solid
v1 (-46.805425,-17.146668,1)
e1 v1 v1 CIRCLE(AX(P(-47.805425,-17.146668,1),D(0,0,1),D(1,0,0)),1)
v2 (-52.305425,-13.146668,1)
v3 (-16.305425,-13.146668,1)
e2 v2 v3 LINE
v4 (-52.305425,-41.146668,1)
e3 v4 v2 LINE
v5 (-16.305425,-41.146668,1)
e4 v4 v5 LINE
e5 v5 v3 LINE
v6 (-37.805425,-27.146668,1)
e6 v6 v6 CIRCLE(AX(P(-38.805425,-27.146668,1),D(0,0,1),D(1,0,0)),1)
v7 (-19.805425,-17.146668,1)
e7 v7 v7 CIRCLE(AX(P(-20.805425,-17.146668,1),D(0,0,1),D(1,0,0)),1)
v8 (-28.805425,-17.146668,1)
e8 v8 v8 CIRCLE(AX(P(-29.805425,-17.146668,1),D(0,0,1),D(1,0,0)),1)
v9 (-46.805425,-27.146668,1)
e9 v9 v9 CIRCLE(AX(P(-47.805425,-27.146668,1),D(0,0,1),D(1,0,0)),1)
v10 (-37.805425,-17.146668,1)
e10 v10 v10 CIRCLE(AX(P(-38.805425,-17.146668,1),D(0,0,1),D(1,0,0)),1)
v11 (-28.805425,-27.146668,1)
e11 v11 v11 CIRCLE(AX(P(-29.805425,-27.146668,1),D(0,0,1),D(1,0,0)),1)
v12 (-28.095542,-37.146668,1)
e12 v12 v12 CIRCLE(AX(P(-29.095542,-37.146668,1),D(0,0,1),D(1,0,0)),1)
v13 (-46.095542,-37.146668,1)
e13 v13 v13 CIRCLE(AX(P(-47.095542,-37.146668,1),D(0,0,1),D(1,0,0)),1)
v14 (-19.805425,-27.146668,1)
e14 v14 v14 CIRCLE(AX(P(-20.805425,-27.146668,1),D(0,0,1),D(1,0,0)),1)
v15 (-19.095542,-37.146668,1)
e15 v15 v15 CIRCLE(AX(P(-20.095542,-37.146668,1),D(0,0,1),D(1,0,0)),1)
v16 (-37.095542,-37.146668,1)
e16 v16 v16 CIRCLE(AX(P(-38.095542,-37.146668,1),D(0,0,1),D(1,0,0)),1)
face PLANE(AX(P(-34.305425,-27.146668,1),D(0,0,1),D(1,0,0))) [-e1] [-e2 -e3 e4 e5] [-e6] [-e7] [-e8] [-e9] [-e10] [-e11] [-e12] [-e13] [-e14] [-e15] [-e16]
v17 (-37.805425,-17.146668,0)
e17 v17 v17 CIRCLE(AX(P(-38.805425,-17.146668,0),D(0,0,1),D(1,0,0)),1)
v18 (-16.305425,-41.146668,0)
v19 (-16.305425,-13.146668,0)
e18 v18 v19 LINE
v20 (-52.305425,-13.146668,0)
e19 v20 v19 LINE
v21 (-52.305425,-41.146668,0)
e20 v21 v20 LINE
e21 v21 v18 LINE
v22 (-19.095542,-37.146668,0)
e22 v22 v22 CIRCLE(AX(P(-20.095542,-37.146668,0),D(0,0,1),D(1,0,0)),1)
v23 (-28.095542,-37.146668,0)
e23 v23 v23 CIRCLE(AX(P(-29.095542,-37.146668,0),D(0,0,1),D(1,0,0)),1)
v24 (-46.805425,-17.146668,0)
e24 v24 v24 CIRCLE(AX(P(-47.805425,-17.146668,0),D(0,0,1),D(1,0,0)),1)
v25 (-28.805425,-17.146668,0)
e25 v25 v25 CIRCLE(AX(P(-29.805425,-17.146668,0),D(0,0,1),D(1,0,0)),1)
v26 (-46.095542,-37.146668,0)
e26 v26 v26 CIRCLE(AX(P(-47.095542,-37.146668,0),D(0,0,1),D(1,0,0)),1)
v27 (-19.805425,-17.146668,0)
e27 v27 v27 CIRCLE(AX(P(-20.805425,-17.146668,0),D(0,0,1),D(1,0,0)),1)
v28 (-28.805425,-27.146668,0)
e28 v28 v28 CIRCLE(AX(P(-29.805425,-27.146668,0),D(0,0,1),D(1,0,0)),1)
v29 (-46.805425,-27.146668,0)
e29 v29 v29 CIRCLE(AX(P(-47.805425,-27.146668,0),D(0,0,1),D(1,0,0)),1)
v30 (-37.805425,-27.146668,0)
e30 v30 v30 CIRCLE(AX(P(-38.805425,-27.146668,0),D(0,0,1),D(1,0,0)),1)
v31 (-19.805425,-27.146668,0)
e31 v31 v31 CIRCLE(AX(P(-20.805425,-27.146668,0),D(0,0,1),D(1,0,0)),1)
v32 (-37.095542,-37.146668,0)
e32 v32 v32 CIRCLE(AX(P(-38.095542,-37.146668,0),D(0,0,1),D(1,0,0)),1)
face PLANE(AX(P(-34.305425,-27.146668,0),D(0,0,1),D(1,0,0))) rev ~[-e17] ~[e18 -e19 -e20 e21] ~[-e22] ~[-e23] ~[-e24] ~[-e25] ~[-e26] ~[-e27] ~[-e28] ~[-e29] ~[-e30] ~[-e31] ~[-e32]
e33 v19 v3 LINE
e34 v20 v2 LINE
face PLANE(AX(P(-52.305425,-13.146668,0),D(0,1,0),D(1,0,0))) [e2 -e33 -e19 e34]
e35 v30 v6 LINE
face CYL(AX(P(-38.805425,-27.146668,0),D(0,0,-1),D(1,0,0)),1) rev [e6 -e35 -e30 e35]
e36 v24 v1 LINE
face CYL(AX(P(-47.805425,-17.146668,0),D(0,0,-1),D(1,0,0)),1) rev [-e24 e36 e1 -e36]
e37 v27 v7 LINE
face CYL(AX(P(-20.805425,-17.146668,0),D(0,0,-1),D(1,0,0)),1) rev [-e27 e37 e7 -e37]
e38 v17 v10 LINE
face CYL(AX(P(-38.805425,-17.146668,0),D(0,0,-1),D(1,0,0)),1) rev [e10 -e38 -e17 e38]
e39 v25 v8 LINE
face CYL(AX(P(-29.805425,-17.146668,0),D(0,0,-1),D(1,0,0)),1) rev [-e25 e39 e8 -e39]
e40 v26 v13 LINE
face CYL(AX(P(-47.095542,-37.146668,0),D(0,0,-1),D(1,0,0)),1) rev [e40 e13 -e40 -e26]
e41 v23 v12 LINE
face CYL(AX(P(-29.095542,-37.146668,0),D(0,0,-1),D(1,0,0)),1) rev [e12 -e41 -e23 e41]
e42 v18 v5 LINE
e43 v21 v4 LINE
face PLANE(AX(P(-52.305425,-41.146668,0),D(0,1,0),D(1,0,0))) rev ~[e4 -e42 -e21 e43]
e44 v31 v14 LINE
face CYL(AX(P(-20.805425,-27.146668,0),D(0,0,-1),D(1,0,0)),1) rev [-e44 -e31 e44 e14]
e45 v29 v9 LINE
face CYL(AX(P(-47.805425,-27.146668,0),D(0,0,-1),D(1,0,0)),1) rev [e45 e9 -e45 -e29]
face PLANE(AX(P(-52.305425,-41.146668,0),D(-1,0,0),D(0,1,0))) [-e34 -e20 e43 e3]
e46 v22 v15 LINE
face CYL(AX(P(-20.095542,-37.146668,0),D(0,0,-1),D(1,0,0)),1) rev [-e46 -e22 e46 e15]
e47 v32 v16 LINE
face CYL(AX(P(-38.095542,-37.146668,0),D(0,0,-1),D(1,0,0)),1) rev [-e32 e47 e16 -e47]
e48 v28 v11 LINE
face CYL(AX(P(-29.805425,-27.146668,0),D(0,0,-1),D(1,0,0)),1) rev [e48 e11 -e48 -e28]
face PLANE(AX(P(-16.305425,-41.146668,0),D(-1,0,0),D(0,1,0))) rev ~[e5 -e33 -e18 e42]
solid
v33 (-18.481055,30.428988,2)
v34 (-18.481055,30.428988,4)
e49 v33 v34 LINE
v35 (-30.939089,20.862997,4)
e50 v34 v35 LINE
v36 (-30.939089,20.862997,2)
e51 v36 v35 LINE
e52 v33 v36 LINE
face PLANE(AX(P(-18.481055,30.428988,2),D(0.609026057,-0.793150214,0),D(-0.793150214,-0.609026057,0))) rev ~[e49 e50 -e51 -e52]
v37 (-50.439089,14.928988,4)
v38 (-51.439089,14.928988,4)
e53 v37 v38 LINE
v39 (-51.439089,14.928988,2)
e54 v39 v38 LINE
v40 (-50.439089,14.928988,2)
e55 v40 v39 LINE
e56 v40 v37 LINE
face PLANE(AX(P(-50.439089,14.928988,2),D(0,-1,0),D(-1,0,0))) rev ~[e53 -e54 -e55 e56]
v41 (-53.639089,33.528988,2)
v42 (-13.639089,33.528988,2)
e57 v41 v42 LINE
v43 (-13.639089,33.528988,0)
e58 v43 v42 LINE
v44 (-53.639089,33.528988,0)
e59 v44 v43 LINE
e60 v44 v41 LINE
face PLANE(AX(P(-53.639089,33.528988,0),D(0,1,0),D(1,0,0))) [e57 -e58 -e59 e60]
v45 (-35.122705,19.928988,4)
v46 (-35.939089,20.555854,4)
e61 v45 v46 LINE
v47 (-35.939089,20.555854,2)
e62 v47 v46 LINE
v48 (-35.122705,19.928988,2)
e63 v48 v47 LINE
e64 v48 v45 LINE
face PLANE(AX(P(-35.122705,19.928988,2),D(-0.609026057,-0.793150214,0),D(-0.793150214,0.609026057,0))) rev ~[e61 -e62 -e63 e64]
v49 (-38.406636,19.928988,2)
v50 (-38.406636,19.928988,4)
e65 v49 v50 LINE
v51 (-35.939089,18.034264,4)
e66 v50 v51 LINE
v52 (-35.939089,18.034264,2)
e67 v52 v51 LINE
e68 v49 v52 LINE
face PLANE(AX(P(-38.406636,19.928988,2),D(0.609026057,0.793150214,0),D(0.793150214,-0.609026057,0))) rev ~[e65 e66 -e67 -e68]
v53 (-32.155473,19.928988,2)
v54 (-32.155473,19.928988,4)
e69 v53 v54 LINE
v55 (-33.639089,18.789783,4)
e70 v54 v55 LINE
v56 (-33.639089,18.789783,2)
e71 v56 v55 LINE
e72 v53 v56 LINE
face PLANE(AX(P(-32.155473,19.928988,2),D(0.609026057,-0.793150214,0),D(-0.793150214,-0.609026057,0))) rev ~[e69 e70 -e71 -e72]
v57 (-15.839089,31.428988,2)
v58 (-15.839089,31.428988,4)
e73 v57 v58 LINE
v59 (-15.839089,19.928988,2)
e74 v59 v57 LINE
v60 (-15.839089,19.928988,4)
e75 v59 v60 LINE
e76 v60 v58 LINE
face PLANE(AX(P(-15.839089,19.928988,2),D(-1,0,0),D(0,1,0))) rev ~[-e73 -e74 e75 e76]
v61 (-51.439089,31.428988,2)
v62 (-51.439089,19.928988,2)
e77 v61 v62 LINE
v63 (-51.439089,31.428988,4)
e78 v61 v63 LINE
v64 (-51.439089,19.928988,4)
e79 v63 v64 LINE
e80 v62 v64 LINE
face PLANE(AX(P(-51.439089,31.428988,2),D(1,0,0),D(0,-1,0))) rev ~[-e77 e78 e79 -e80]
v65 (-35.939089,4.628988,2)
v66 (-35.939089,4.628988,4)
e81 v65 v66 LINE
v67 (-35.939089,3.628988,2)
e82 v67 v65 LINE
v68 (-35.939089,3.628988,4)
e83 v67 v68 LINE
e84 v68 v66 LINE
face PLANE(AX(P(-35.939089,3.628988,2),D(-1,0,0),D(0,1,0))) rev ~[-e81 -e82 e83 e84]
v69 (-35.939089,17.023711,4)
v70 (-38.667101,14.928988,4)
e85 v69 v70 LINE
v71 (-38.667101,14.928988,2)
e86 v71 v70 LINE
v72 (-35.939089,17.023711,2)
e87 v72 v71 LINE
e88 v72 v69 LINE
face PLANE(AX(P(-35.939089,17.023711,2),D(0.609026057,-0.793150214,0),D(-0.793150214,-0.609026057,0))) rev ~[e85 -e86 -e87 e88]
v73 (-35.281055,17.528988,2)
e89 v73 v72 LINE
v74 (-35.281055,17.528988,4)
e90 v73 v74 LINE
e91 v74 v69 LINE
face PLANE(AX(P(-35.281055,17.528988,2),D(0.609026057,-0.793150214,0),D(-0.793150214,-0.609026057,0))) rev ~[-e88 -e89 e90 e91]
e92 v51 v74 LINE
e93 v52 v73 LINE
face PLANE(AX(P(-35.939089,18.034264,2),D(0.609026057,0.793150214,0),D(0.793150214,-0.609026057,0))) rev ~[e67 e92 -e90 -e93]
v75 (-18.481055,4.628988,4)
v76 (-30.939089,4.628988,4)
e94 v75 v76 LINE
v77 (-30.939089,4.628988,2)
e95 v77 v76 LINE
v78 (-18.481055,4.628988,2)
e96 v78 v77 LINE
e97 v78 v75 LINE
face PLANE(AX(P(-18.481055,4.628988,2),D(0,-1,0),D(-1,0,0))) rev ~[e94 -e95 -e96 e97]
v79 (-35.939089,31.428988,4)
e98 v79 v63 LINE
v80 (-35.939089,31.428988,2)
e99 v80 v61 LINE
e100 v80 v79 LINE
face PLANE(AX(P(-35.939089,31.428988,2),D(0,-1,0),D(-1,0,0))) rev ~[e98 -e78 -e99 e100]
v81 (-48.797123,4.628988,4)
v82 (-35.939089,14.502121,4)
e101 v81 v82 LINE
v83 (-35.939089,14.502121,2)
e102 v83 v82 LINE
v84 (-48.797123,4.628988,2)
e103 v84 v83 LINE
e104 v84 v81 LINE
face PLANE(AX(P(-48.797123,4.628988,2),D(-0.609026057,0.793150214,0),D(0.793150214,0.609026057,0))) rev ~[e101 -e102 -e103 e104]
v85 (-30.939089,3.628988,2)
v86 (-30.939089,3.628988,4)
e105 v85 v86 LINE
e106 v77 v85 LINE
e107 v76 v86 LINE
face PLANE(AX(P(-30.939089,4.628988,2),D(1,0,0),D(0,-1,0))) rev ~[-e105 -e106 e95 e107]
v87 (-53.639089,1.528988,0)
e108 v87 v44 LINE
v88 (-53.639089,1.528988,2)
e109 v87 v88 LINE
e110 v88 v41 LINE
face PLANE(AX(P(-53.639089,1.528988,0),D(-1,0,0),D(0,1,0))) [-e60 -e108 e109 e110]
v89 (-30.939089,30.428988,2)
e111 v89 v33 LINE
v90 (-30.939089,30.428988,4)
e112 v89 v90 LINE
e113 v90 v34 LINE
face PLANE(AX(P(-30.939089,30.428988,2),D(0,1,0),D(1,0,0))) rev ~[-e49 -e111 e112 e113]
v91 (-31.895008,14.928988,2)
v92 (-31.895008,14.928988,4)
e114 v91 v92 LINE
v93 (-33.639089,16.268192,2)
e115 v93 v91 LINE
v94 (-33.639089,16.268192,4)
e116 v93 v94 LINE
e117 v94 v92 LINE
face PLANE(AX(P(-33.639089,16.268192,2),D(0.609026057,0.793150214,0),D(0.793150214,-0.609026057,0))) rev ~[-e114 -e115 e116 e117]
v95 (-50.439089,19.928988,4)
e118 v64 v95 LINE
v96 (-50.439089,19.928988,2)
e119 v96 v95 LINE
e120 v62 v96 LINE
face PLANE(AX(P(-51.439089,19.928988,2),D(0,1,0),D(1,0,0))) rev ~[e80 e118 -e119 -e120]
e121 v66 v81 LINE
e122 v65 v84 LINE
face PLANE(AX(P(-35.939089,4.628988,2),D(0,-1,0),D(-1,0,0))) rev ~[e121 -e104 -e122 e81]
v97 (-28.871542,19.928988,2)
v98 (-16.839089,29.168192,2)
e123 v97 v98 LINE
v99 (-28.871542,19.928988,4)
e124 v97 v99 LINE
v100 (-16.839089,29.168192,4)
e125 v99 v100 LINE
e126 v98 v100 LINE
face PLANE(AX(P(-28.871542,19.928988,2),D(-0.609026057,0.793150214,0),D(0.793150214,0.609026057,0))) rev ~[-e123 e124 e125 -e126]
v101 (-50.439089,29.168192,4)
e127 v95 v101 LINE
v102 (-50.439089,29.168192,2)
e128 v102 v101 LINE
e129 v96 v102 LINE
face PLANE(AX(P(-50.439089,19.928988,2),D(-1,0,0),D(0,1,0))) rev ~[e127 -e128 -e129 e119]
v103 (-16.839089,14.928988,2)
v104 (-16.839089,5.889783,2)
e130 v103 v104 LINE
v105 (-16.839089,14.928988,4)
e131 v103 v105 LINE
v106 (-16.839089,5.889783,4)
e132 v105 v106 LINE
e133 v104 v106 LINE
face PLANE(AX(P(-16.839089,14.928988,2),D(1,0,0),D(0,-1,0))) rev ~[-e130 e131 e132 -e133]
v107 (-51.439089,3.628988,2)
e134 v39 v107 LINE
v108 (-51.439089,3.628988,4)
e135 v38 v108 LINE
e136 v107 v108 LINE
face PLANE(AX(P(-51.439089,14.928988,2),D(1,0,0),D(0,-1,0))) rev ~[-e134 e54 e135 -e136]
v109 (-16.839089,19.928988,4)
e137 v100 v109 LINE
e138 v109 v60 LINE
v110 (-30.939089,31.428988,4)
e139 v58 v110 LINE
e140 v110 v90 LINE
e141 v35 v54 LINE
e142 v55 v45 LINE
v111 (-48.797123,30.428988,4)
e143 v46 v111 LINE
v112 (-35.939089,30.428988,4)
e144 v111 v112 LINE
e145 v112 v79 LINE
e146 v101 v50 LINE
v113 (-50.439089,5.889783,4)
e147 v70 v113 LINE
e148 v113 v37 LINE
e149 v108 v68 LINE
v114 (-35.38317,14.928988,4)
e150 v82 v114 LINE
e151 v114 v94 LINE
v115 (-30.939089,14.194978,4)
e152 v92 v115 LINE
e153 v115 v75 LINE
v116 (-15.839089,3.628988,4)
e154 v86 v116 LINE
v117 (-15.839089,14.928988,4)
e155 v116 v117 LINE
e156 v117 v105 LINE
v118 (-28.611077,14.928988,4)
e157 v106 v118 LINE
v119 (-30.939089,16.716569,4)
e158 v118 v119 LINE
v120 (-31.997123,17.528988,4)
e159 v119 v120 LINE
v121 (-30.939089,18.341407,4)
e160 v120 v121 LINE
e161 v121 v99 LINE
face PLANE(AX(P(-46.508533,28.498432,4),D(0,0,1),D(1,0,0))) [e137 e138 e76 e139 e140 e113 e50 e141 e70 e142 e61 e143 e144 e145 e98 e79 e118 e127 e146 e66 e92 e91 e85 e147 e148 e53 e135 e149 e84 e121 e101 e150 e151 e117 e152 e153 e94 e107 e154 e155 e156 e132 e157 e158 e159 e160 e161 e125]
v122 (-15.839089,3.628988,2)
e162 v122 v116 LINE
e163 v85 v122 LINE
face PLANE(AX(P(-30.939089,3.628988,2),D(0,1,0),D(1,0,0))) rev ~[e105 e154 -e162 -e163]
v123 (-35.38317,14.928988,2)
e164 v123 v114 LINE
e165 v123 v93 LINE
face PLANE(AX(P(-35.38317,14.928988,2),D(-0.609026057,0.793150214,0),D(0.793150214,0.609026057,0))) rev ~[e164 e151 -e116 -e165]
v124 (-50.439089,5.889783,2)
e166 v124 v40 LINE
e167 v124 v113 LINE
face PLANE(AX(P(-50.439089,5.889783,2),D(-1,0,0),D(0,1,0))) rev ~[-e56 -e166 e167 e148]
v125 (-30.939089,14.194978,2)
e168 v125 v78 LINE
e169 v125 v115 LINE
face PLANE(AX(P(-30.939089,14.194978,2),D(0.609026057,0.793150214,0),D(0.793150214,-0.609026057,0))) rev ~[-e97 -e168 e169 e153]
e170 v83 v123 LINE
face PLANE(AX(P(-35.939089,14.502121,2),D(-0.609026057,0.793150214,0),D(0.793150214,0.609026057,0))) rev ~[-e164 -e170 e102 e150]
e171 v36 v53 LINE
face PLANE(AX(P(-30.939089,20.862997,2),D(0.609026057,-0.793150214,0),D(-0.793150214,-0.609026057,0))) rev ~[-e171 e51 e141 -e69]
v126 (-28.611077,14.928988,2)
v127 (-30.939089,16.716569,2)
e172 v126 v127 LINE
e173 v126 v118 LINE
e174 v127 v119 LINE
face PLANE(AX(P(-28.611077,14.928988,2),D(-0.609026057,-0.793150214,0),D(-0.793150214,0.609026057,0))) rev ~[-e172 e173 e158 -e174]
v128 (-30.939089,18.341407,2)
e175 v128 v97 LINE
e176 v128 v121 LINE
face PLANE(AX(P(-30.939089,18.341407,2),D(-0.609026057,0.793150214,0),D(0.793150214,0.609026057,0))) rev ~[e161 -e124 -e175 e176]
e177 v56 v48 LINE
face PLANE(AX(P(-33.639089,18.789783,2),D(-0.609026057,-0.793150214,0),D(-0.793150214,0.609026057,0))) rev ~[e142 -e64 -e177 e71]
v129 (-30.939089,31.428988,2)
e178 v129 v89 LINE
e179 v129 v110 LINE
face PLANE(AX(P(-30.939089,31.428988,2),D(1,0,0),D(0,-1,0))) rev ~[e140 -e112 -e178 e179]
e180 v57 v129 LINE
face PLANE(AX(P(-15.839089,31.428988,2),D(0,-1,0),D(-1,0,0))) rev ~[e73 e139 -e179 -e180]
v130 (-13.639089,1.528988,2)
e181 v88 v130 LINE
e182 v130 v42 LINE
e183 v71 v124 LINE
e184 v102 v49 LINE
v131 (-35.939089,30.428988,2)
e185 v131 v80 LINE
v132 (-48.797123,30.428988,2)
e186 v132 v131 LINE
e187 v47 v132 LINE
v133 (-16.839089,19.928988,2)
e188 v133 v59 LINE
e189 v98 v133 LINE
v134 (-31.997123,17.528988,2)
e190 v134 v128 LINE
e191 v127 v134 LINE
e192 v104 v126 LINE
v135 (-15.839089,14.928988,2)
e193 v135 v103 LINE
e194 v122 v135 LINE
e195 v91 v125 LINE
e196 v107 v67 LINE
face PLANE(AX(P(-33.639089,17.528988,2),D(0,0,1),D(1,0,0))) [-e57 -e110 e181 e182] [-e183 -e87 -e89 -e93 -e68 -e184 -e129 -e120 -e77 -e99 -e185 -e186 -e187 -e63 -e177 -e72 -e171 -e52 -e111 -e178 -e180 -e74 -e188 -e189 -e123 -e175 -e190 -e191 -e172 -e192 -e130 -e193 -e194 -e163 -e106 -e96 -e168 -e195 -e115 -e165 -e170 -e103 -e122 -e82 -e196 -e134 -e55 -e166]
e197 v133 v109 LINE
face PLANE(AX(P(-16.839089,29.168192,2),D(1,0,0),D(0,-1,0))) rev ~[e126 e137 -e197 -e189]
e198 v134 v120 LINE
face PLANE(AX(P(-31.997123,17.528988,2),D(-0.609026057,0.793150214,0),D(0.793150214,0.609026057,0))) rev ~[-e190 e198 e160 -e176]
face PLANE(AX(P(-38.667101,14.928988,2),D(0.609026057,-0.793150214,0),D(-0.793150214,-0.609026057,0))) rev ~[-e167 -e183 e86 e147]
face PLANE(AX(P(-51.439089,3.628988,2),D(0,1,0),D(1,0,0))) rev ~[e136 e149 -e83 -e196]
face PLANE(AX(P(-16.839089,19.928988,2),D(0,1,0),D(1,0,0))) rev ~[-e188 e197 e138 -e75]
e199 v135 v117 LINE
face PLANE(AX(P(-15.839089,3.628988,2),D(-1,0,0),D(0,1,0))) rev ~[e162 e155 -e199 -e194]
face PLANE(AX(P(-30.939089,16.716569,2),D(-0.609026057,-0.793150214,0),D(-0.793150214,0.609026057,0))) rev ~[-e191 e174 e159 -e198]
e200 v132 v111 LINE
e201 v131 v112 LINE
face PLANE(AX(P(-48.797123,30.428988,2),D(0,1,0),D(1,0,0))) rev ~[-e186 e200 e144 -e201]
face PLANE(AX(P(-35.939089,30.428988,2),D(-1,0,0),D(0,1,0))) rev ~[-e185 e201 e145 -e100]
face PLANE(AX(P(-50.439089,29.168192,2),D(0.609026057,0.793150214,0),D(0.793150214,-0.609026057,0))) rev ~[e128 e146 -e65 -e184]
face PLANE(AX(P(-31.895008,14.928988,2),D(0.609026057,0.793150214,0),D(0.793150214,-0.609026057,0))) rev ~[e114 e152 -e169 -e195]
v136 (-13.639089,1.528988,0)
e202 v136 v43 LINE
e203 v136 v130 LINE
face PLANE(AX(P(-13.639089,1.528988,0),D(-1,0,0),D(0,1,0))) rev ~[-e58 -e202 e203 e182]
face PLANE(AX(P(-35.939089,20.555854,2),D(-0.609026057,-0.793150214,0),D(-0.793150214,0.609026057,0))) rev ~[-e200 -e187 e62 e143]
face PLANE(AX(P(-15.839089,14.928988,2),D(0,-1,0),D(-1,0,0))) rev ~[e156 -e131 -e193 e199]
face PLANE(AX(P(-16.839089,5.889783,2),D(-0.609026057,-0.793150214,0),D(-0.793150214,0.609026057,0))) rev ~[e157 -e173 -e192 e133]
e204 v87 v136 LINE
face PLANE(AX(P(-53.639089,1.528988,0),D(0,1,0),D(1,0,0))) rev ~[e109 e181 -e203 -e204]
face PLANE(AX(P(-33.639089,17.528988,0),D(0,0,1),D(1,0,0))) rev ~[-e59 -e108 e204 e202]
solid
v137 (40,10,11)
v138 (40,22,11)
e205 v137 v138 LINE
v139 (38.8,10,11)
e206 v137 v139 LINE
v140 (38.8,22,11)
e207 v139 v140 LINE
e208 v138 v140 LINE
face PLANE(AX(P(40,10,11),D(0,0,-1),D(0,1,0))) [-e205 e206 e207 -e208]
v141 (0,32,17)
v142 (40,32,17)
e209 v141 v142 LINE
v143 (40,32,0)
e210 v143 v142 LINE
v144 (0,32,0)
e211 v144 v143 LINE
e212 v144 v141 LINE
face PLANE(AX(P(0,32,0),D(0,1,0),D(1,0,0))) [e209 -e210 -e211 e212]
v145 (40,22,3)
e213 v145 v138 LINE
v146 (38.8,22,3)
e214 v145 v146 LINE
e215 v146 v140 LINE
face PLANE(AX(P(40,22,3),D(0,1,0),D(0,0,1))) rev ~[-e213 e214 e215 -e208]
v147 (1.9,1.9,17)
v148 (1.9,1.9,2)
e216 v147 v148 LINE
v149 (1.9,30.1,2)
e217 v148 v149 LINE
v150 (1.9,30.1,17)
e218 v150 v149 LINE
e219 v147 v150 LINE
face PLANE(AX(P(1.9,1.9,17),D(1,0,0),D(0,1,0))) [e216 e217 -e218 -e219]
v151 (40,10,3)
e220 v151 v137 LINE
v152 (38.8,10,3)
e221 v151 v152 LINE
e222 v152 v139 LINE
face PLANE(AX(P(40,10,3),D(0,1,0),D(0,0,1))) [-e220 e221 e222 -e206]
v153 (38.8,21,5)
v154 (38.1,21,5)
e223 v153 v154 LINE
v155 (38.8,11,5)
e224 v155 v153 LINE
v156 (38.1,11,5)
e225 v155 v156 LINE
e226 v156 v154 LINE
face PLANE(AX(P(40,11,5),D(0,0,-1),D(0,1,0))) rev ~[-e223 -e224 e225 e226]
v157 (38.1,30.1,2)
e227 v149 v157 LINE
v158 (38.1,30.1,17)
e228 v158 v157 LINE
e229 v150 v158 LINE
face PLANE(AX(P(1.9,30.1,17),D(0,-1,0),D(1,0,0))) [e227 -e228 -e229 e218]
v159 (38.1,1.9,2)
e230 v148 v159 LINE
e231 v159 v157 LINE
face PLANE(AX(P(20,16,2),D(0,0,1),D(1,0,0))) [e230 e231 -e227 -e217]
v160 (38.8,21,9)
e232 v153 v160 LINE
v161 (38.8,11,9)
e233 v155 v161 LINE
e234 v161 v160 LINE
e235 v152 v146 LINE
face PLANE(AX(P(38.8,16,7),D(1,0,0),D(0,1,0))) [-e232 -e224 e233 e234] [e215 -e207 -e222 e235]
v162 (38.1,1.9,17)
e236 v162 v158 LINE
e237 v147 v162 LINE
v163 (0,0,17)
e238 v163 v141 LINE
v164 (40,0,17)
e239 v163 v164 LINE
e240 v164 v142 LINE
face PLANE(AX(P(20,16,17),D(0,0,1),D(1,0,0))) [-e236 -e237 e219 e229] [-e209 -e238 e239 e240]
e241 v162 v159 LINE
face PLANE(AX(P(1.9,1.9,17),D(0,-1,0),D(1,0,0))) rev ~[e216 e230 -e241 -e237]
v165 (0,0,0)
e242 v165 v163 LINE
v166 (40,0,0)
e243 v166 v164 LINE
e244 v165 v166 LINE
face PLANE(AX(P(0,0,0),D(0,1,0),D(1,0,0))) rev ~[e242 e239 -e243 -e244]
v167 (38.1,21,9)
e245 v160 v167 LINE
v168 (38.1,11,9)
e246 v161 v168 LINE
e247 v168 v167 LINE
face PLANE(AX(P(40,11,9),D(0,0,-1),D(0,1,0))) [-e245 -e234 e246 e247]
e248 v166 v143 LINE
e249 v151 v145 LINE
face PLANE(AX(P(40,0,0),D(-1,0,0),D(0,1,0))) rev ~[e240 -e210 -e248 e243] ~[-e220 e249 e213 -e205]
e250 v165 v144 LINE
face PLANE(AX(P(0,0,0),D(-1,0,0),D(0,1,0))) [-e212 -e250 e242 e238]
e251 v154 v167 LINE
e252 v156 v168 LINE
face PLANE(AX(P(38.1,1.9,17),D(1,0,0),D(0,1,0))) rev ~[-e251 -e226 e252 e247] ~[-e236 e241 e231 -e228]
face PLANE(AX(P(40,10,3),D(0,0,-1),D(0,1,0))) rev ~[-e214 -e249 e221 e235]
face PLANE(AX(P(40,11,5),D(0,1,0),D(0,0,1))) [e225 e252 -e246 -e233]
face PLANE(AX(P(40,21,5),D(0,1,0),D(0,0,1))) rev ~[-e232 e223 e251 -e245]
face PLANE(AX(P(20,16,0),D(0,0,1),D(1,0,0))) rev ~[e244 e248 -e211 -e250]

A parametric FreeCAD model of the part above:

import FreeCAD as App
import Part
import Sketcher
from FreeCAD import Vector

doc = App.newDocument("Part")
body = doc.addObject("PartDesign::Body", "Body")

# Sketch on XY plane
sketch1 = body.newObject("Sketcher::SketchObject", "Sketch")
sketch1.AttachmentSupport = (doc.getObject("XY_Plane"), [""])
sketch1.MapMode = "FlatFace"
sketch1.addGeometry(Part.LineSegment(Vector(0, 32, 0), Vector(0, 0, 0)), False)
sketch1.addGeometry(Part.LineSegment(Vector(0, 0, 0), Vector(40, 0, 0)), False)
sketch1.addGeometry(Part.LineSegment(Vector(40, 0, 0), Vector(40, 32, 0)), False)
sketch1.addGeometry(Part.LineSegment(Vector(40, 32, 0), Vector(0, 32, 0)), False)
sketch1.addConstraint(Sketcher.Constraint("Coincident", 0, 2, 1, 1))
sketch1.addConstraint(Sketcher.Constraint("Coincident", 1, 2, 2, 1))
sketch1.addConstraint(Sketcher.Constraint("Coincident", 2, 2, 3, 1))
sketch1.addConstraint(Sketcher.Constraint("Coincident", 3, 2, 0, 1))
sketch1.addConstraint(Sketcher.Constraint("Vertical", 0))
sketch1.addConstraint(Sketcher.Constraint("Horizontal", 1))
sketch1.addConstraint(Sketcher.Constraint("Vertical", 2))
sketch1.addConstraint(Sketcher.Constraint("Horizontal", 3))
sketch1.addConstraint(Sketcher.Constraint("Coincident", 0, 2, -1, 1))
sketch1.addConstraint(Sketcher.Constraint("DistanceX", 1, 1, 1, 2, 40.0))
sketch1.addConstraint(Sketcher.Constraint("DistanceY", 0, 2, 0, 1, 32.0))
pad1 = body.newObject("PartDesign::Pad", "Pad")
pad1.Profile = sketch1
pad1.Length = 17

# Sketch on XY plane
sketch2 = body.newObject("Sketcher::SketchObject", "Sketch001")
sketch2.AttachmentSupport = (doc.getObject("XY_Plane"), [""])
sketch2.MapMode = "FlatFace"
sketch2.AttachmentOffset = App.Placement(Vector(0, 0, 17), App.Rotation())
sketch2.addGeometry(Part.LineSegment(Vector(2, 30, 0), Vector(2, 2, 0)), False)
sketch2.addGeometry(Part.LineSegment(Vector(2, 2, 0), Vector(38, 2, 0)), False)
sketch2.addGeometry(Part.LineSegment(Vector(38, 2, 0), Vector(38, 30, 0)), False)
sketch2.addGeometry(Part.LineSegment(Vector(38, 30, 0), Vector(2, 30, 0)), False)
sketch2.addConstraint(Sketcher.Constraint("Coincident", 0, 2, 1, 1))
sketch2.addConstraint(Sketcher.Constraint("Coincident", 1, 2, 2, 1))
sketch2.addConstraint(Sketcher.Constraint("Coincident", 2, 2, 3, 1))
sketch2.addConstraint(Sketcher.Constraint("Coincident", 3, 2, 0, 1))
sketch2.addConstraint(Sketcher.Constraint("Vertical", 0))
sketch2.addConstraint(Sketcher.Constraint("Horizontal", 1))
sketch2.addConstraint(Sketcher.Constraint("Vertical", 2))
sketch2.addConstraint(Sketcher.Constraint("Horizontal", 3))
sketch2.addConstraint(Sketcher.Constraint("DistanceX", 1, 1, 1, 2, 36.2))
sketch2.addConstraint(Sketcher.Constraint("DistanceY", 0, 2, 0, 1, 28.2))
sketch2.addConstraint(Sketcher.Constraint("DistanceX", -1, 1, 0, 2, 1.9))
sketch2.addConstraint(Sketcher.Constraint("DistanceY", -1, 1, 0, 2, 1.9))
pocket1 = body.newObject("PartDesign::Pocket", "Pocket")
pocket1.Profile = sketch2
pocket1.Length = 15

# Sketch on YZ plane
sketch3 = body.newObject("Sketcher::SketchObject", "Sketch002")
sketch3.AttachmentSupport = (doc.getObject("YZ_Plane"), [""])
sketch3.MapMode = "FlatFace"
sketch3.AttachmentOffset = App.Placement(Vector(0, 0, 40), App.Rotation())
sketch3.addGeometry(Part.LineSegment(Vector(11, 9, 0), Vector(11, 5, 0)), False)
sketch3.addGeometry(Part.LineSegment(Vector(11, 5, 0), Vector(21, 5, 0)), False)
sketch3.addGeometry(Part.LineSegment(Vector(21, 5, 0), Vector(21, 9, 0)), False)
sketch3.addGeometry(Part.LineSegment(Vector(21, 9, 0), Vector(11, 9, 0)), False)
sketch3.addConstraint(Sketcher.Constraint("Coincident", 0, 2, 1, 1))
sketch3.addConstraint(Sketcher.Constraint("Coincident", 1, 2, 2, 1))
sketch3.addConstraint(Sketcher.Constraint("Coincident", 2, 2, 3, 1))
sketch3.addConstraint(Sketcher.Constraint("Coincident", 3, 2, 0, 1))
sketch3.addConstraint(Sketcher.Constraint("Vertical", 0))
sketch3.addConstraint(Sketcher.Constraint("Horizontal", 1))
sketch3.addConstraint(Sketcher.Constraint("Vertical", 2))
sketch3.addConstraint(Sketcher.Constraint("Horizontal", 3))
sketch3.addConstraint(Sketcher.Constraint("DistanceX", 1, 1, 1, 2, 10.0))
sketch3.addConstraint(Sketcher.Constraint("DistanceY", 0, 2, 0, 1, 4.0))
sketch3.addConstraint(Sketcher.Constraint("DistanceX", -1, 1, 0, 2, 11.0))
sketch3.addConstraint(Sketcher.Constraint("DistanceY", -1, 1, 0, 2, 5.0))
pocket2 = body.newObject("PartDesign::Pocket", "Pocket001")
pocket2.Profile = sketch3
pocket2.Length = 1.9

# Sketch on YZ plane
sketch4 = body.newObject("Sketcher::SketchObject", "Sketch003")
sketch4.AttachmentSupport = (doc.getObject("YZ_Plane"), [""])
sketch4.MapMode = "FlatFace"
sketch4.AttachmentOffset = App.Placement(Vector(0, 0, 40), App.Rotation())
sketch4.addGeometry(Part.LineSegment(Vector(10, 11, 0), Vector(10, 3, 0)), False)
sketch4.addGeometry(Part.LineSegment(Vector(10, 3, 0), Vector(22, 3, 0)), False)
sketch4.addGeometry(Part.LineSegment(Vector(22, 3, 0), Vector(22, 11, 0)), False)
sketch4.addGeometry(Part.LineSegment(Vector(22, 11, 0), Vector(10, 11, 0)), False)
sketch4.addGeometry(Part.LineSegment(Vector(21, 5, 0), Vector(11, 5, 0)), False)
sketch4.addGeometry(Part.LineSegment(Vector(11, 5, 0), Vector(11, 9, 0)), False)
sketch4.addGeometry(Part.LineSegment(Vector(11, 9, 0), Vector(21, 9, 0)), False)
sketch4.addGeometry(Part.LineSegment(Vector(21, 9, 0), Vector(21, 5, 0)), False)
sketch4.addConstraint(Sketcher.Constraint("Coincident", 0, 2, 1, 1))
sketch4.addConstraint(Sketcher.Constraint("Coincident", 1, 2, 2, 1))
sketch4.addConstraint(Sketcher.Constraint("Coincident", 2, 2, 3, 1))
sketch4.addConstraint(Sketcher.Constraint("Coincident", 3, 2, 0, 1))
sketch4.addConstraint(Sketcher.Constraint("Coincident", 4, 2, 5, 1))
sketch4.addConstraint(Sketcher.Constraint("Coincident", 5, 2, 6, 1))
sketch4.addConstraint(Sketcher.Constraint("Coincident", 6, 2, 7, 1))
sketch4.addConstraint(Sketcher.Constraint("Coincident", 7, 2, 4, 1))
sketch4.addConstraint(Sketcher.Constraint("Vertical", 0))
sketch4.addConstraint(Sketcher.Constraint("Horizontal", 1))
sketch4.addConstraint(Sketcher.Constraint("Vertical", 2))
sketch4.addConstraint(Sketcher.Constraint("Horizontal", 3))
sketch4.addConstraint(Sketcher.Constraint("Horizontal", 4))
sketch4.addConstraint(Sketcher.Constraint("Vertical", 5))
sketch4.addConstraint(Sketcher.Constraint("Horizontal", 6))
sketch4.addConstraint(Sketcher.Constraint("Vertical", 7))
sketch4.addConstraint(Sketcher.Constraint("DistanceX", 1, 1, 1, 2, 12.0))
sketch4.addConstraint(Sketcher.Constraint("DistanceX", 4, 2, 4, 1, 10.0))
sketch4.addConstraint(Sketcher.Constraint("DistanceY", 0, 2, 0, 1, 8.0))
sketch4.addConstraint(Sketcher.Constraint("DistanceY", 5, 1, 5, 2, 4.0))
sketch4.addConstraint(Sketcher.Constraint("DistanceX", -1, 1, 0, 2, 10.0))
sketch4.addConstraint(Sketcher.Constraint("DistanceY", -1, 1, 0, 2, 3.0))
sketch4.addConstraint(Sketcher.Constraint("DistanceX", -1, 1, 4, 2, 11.0))
sketch4.addConstraint(Sketcher.Constraint("DistanceY", -1, 1, 4, 2, 5.0))
pocket3 = body.newObject("PartDesign::Pocket", "Pocket002")
pocket3.Profile = sketch4
pocket3.Length = 1.2
body2 = doc.addObject("PartDesign::Body", "Body001")

# Sketch on XY plane
sketch5 = body2.newObject("Sketcher::SketchObject", "Sketch004")
sketch5.AttachmentSupport = (doc.getObject("XY_Plane001"), [""])
sketch5.MapMode = "FlatFace"
sketch5.addGeometry(Part.LineSegment(Vector(-54, 34, 0), Vector(-54, 2, 0)), False)
sketch5.addGeometry(Part.LineSegment(Vector(-54, 2, 0), Vector(-14, 2, 0)), False)
sketch5.addGeometry(Part.LineSegment(Vector(-14, 2, 0), Vector(-14, 34, 0)), False)
sketch5.addGeometry(Part.LineSegment(Vector(-14, 34, 0), Vector(-54, 34, 0)), False)
sketch5.addConstraint(Sketcher.Constraint("Coincident", 0, 2, 1, 1))
sketch5.addConstraint(Sketcher.Constraint("Coincident", 1, 2, 2, 1))
sketch5.addConstraint(Sketcher.Constraint("Coincident", 2, 2, 3, 1))
sketch5.addConstraint(Sketcher.Constraint("Coincident", 3, 2, 0, 1))
sketch5.addConstraint(Sketcher.Constraint("Vertical", 0))
sketch5.addConstraint(Sketcher.Constraint("Horizontal", 1))
sketch5.addConstraint(Sketcher.Constraint("Vertical", 2))
sketch5.addConstraint(Sketcher.Constraint("Horizontal", 3))
sketch5.addConstraint(Sketcher.Constraint("DistanceX", 1, 1, 1, 2, 40.0))
sketch5.addConstraint(Sketcher.Constraint("DistanceY", 0, 2, 0, 1, 32.0))
sketch5.addConstraint(Sketcher.Constraint("DistanceX", 0, 2, -1, 1, 53.639089))
sketch5.addConstraint(Sketcher.Constraint("DistanceY", -1, 1, 0, 2, 1.528988))
pad2 = body2.newObject("PartDesign::Pad", "Pad001")
pad2.Profile = sketch5
pad2.Length = 2

# Sketch on XY plane
sketch6 = body2.newObject("Sketcher::SketchObject", "Sketch005")
sketch6.AttachmentSupport = (doc.getObject("XY_Plane001"), [""])
sketch6.MapMode = "FlatFace"
sketch6.AttachmentOffset = App.Placement(Vector(0, 0, 2), App.Rotation())
sketch6.addGeometry(Part.LineSegment(Vector(-30.9, 14.2, 0), Vector(-18.5, 4.6, 0)), False)
sketch6.addGeometry(Part.LineSegment(Vector(-18.5, 4.6, 0), Vector(-30.9, 4.6, 0)), False)
sketch6.addGeometry(Part.LineSegment(Vector(-30.9, 4.6, 0), Vector(-30.9, 3.6, 0)), False)
sketch6.addGeometry(Part.LineSegment(Vector(-30.9, 3.6, 0), Vector(-15.8, 3.6, 0)), False)
sketch6.addGeometry(Part.LineSegment(Vector(-15.8, 3.6, 0), Vector(-15.8, 14.9, 0)), False)
sketch6.addGeometry(Part.LineSegment(Vector(-15.8, 14.9, 0), Vector(-16.8, 14.9, 0)), False)
sketch6.addGeometry(Part.LineSegment(Vector(-16.8, 14.9, 0), Vector(-16.8, 5.9, 0)), False)
sketch6.addGeometry(Part.LineSegment(Vector(-16.8, 5.9, 0), Vector(-28.6, 14.9, 0)), False)
sketch6.addGeometry(Part.LineSegment(Vector(-28.6, 14.9, 0), Vector(-30.9, 16.7, 0)), False)
sketch6.addGeometry(Part.LineSegment(Vector(-30.9, 16.7, 0), Vector(-32, 17.5, 0)), False)
sketch6.addGeometry(Part.LineSegment(Vector(-32, 17.5, 0), Vector(-30.9, 18.3, 0)), False)
sketch6.addGeometry(Part.LineSegment(Vector(-30.9, 18.3, 0), Vector(-28.9, 19.9, 0)), False)
sketch6.addGeometry(Part.LineSegment(Vector(-28.9, 19.9, 0), Vector(-16.8, 29.2, 0)), False)
sketch6.addGeometry(Part.LineSegment(Vector(-16.8, 29.2, 0), Vector(-16.8, 19.9, 0)), False)
sketch6.addGeometry(Part.LineSegment(Vector(-16.8, 19.9, 0), Vector(-15.8, 19.9, 0)), False)
sketch6.addGeometry(Part.LineSegment(Vector(-15.8, 19.9, 0), Vector(-15.8, 31.4, 0)), False)
sketch6.addGeometry(Part.LineSegment(Vector(-15.8, 31.4, 0), Vector(-30.9, 31.4, 0)), False)
sketch6.addGeometry(Part.LineSegment(Vector(-30.9, 31.4, 0), Vector(-30.9, 30.4, 0)), False)
sketch6.addGeometry(Part.LineSegment(Vector(-30.9, 30.4, 0), Vector(-18.5, 30.4, 0)), False)
sketch6.addGeometry(Part.LineSegment(Vector(-18.5, 30.4, 0), Vector(-30.9, 20.9, 0)), False)
sketch6.addGeometry(Part.LineSegment(Vector(-30.9, 20.9, 0), Vector(-32.2, 19.9, 0)), False)
sketch6.addGeometry(Part.LineSegment(Vector(-32.2, 19.9, 0), Vector(-33.6, 18.8, 0)), False)
sketch6.addGeometry(Part.LineSegment(Vector(-33.6, 18.8, 0), Vector(-35.1, 19.9, 0)), False)
sketch6.addGeometry(Part.LineSegment(Vector(-35.1, 19.9, 0), Vector(-35.9, 20.6, 0)), False)
sketch6.addGeometry(Part.LineSegment(Vector(-35.9, 20.6, 0), Vector(-48.8, 30.4, 0)), False)
sketch6.addGeometry(Part.LineSegment(Vector(-48.8, 30.4, 0), Vector(-35.9, 30.4, 0)), False)
sketch6.addGeometry(Part.LineSegment(Vector(-35.9, 30.4, 0), Vector(-35.9, 31.4, 0)), False)
sketch6.addGeometry(Part.LineSegment(Vector(-35.9, 31.4, 0), Vector(-51.4, 31.4, 0)), False)
sketch6.addGeometry(Part.LineSegment(Vector(-51.4, 31.4, 0), Vector(-51.4, 19.9, 0)), False)
sketch6.addGeometry(Part.LineSegment(Vector(-51.4, 19.9, 0), Vector(-50.4, 19.9, 0)), False)
sketch6.addGeometry(Part.LineSegment(Vector(-50.4, 19.9, 0), Vector(-50.4, 29.2, 0)), False)
sketch6.addGeometry(Part.LineSegment(Vector(-50.4, 29.2, 0), Vector(-38.4, 19.9, 0)), False)
sketch6.addGeometry(Part.LineSegment(Vector(-38.4, 19.9, 0), Vector(-35.9, 18, 0)), False)
sketch6.addGeometry(Part.LineSegment(Vector(-35.9, 18, 0), Vector(-35.3, 17.5, 0)), False)
sketch6.addGeometry(Part.LineSegment(Vector(-35.3, 17.5, 0), Vector(-35.9, 17, 0)), False)
sketch6.addGeometry(Part.LineSegment(Vector(-35.9, 17, 0), Vector(-38.7, 14.9, 0)), False)
sketch6.addGeometry(Part.LineSegment(Vector(-38.7, 14.9, 0), Vector(-50.4, 5.9, 0)), False)
sketch6.addGeometry(Part.LineSegment(Vector(-50.4, 5.9, 0), Vector(-50.4, 14.9, 0)), False)
sketch6.addGeometry(Part.LineSegment(Vector(-50.4, 14.9, 0), Vector(-51.4, 14.9, 0)), False)
sketch6.addGeometry(Part.LineSegment(Vector(-51.4, 14.9, 0), Vector(-51.4, 3.6, 0)), False)
sketch6.addGeometry(Part.LineSegment(Vector(-51.4, 3.6, 0), Vector(-35.9, 3.6, 0)), False)
sketch6.addGeometry(Part.LineSegment(Vector(-35.9, 3.6, 0), Vector(-35.9, 4.6, 0)), False)
sketch6.addGeometry(Part.LineSegment(Vector(-35.9, 4.6, 0), Vector(-48.8, 4.6, 0)), False)
sketch6.addGeometry(Part.LineSegment(Vector(-48.8, 4.6, 0), Vector(-35.9, 14.5, 0)), False)
sketch6.addGeometry(Part.LineSegment(Vector(-35.9, 14.5, 0), Vector(-35.4, 14.9, 0)), False)
sketch6.addGeometry(Part.LineSegment(Vector(-35.4, 14.9, 0), Vector(-33.6, 16.3, 0)), False)
sketch6.addGeometry(Part.LineSegment(Vector(-33.6, 16.3, 0), Vector(-31.9, 14.9, 0)), False)
sketch6.addGeometry(Part.LineSegment(Vector(-31.9, 14.9, 0), Vector(-30.9, 14.2, 0)), False)
sketch6.addConstraint(Sketcher.Constraint("Coincident", 0, 2, 1, 1))
sketch6.addConstraint(Sketcher.Constraint("Coincident", 1, 2, 2, 1))
sketch6.addConstraint(Sketcher.Constraint("Coincident", 2, 2, 3, 1))
sketch6.addConstraint(Sketcher.Constraint("Coincident", 3, 2, 4, 1))
sketch6.addConstraint(Sketcher.Constraint("Coincident", 4, 2, 5, 1))
sketch6.addConstraint(Sketcher.Constraint("Coincident", 5, 2, 6, 1))
sketch6.addConstraint(Sketcher.Constraint("Coincident", 6, 2, 7, 1))
sketch6.addConstraint(Sketcher.Constraint("Coincident", 7, 2, 8, 1))
sketch6.addConstraint(Sketcher.Constraint("Coincident", 8, 2, 9, 1))
sketch6.addConstraint(Sketcher.Constraint("Coincident", 9, 2, 10, 1))
sketch6.addConstraint(Sketcher.Constraint("Coincident", 10, 2, 11, 1))
sketch6.addConstraint(Sketcher.Constraint("Coincident", 11, 2, 12, 1))
sketch6.addConstraint(Sketcher.Constraint("Coincident", 12, 2, 13, 1))
sketch6.addConstraint(Sketcher.Constraint("Coincident", 13, 2, 14, 1))
sketch6.addConstraint(Sketcher.Constraint("Coincident", 14, 2, 15, 1))
sketch6.addConstraint(Sketcher.Constraint("Coincident", 15, 2, 16, 1))
sketch6.addConstraint(Sketcher.Constraint("Coincident", 16, 2, 17, 1))
sketch6.addConstraint(Sketcher.Constraint("Coincident", 17, 2, 18, 1))
sketch6.addConstraint(Sketcher.Constraint("Coincident", 18, 2, 19, 1))
sketch6.addConstraint(Sketcher.Constraint("Coincident", 19, 2, 20, 1))
sketch6.addConstraint(Sketcher.Constraint("Coincident", 20, 2, 21, 1))
sketch6.addConstraint(Sketcher.Constraint("Coincident", 21, 2, 22, 1))
sketch6.addConstraint(Sketcher.Constraint("Coincident", 22, 2, 23, 1))
sketch6.addConstraint(Sketcher.Constraint("Coincident", 23, 2, 24, 1))
sketch6.addConstraint(Sketcher.Constraint("Coincident", 24, 2, 25, 1))
sketch6.addConstraint(Sketcher.Constraint("Coincident", 25, 2, 26, 1))
sketch6.addConstraint(Sketcher.Constraint("Coincident", 26, 2, 27, 1))
sketch6.addConstraint(Sketcher.Constraint("Coincident", 27, 2, 28, 1))
sketch6.addConstraint(Sketcher.Constraint("Coincident", 28, 2, 29, 1))
sketch6.addConstraint(Sketcher.Constraint("Coincident", 29, 2, 30, 1))
sketch6.addConstraint(Sketcher.Constraint("Coincident", 30, 2, 31, 1))
sketch6.addConstraint(Sketcher.Constraint("Coincident", 31, 2, 32, 1))
sketch6.addConstraint(Sketcher.Constraint("Coincident", 32, 2, 33, 1))
sketch6.addConstraint(Sketcher.Constraint("Coincident", 33, 2, 34, 1))
sketch6.addConstraint(Sketcher.Constraint("Coincident", 34, 2, 35, 1))
sketch6.addConstraint(Sketcher.Constraint("Coincident", 35, 2, 36, 1))
sketch6.addConstraint(Sketcher.Constraint("Coincident", 36, 2, 37, 1))
sketch6.addConstraint(Sketcher.Constraint("Coincident", 37, 2, 38, 1))
sketch6.addConstraint(Sketcher.Constraint("Coincident", 38, 2, 39, 1))
sketch6.addConstraint(Sketcher.Constraint("Coincident", 39, 2, 40, 1))
sketch6.addConstraint(Sketcher.Constraint("Coincident", 40, 2, 41, 1))
sketch6.addConstraint(Sketcher.Constraint("Coincident", 41, 2, 42, 1))
sketch6.addConstraint(Sketcher.Constraint("Coincident", 42, 2, 43, 1))
sketch6.addConstraint(Sketcher.Constraint("Coincident", 43, 2, 44, 1))
sketch6.addConstraint(Sketcher.Constraint("Coincident", 44, 2, 45, 1))
sketch6.addConstraint(Sketcher.Constraint("Coincident", 45, 2, 46, 1))
sketch6.addConstraint(Sketcher.Constraint("Coincident", 46, 2, 47, 1))
sketch6.addConstraint(Sketcher.Constraint("Coincident", 47, 2, 0, 1))
sketch6.addConstraint(Sketcher.Constraint("Horizontal", 1))
sketch6.addConstraint(Sketcher.Constraint("Vertical", 2))
sketch6.addConstraint(Sketcher.Constraint("Horizontal", 3))
sketch6.addConstraint(Sketcher.Constraint("Vertical", 4))
sketch6.addConstraint(Sketcher.Constraint("Horizontal", 5))
sketch6.addConstraint(Sketcher.Constraint("Vertical", 6))
sketch6.addConstraint(Sketcher.Constraint("Vertical", 13))
sketch6.addConstraint(Sketcher.Constraint("Horizontal", 14))
sketch6.addConstraint(Sketcher.Constraint("Vertical", 15))
sketch6.addConstraint(Sketcher.Constraint("Horizontal", 16))
sketch6.addConstraint(Sketcher.Constraint("Vertical", 17))
sketch6.addConstraint(Sketcher.Constraint("Horizontal", 18))
sketch6.addConstraint(Sketcher.Constraint("Horizontal", 25))
sketch6.addConstraint(Sketcher.Constraint("Vertical", 26))
sketch6.addConstraint(Sketcher.Constraint("Horizontal", 27))
sketch6.addConstraint(Sketcher.Constraint("Vertical", 28))
sketch6.addConstraint(Sketcher.Constraint("Horizontal", 29))
sketch6.addConstraint(Sketcher.Constraint("Vertical", 30))
sketch6.addConstraint(Sketcher.Constraint("Vertical", 37))
sketch6.addConstraint(Sketcher.Constraint("Horizontal", 38))
sketch6.addConstraint(Sketcher.Constraint("Vertical", 39))
sketch6.addConstraint(Sketcher.Constraint("Horizontal", 40))
sketch6.addConstraint(Sketcher.Constraint("Vertical", 41))
sketch6.addConstraint(Sketcher.Constraint("Horizontal", 42))
sketch6.addConstraint(Sketcher.Constraint("Parallel", 0, 7))
sketch6.addConstraint(Sketcher.Constraint("Parallel", 7, 8))
sketch6.addConstraint(Sketcher.Constraint("Parallel", 8, 9))
sketch6.addConstraint(Sketcher.Constraint("Parallel", 10, 11))
sketch6.addConstraint(Sketcher.Constraint("Parallel", 11, 12))
sketch6.addConstraint(Sketcher.Constraint("Parallel", 12, 19))
sketch6.addConstraint(Sketcher.Constraint("Parallel", 19, 20))
sketch6.addConstraint(Sketcher.Constraint("Parallel", 20, 21))
sketch6.addConstraint(Sketcher.Constraint("Parallel", 9, 22))
sketch6.addConstraint(Sketcher.Constraint("Parallel", 22, 23))
sketch6.addConstraint(Sketcher.Constraint("Parallel", 23, 24))
sketch6.addConstraint(Sketcher.Constraint("Parallel", 24, 31))
sketch6.addConstraint(Sketcher.Constraint("Parallel", 31, 32))
sketch6.addConstraint(Sketcher.Constraint("Parallel", 32, 33))
sketch6.addConstraint(Sketcher.Constraint("Parallel", 21, 34))
sketch6.addConstraint(Sketcher.Constraint("Parallel", 34, 35))
sketch6.addConstraint(Sketcher.Constraint("Parallel", 35, 36))
sketch6.addConstraint(Sketcher.Constraint("Parallel", 36, 43))
sketch6.addConstraint(Sketcher.Constraint("Parallel", 43, 44))
sketch6.addConstraint(Sketcher.Constraint("Parallel", 44, 45))
sketch6.addConstraint(Sketcher.Constraint("Parallel", 33, 46))
sketch6.addConstraint(Sketcher.Constraint("Parallel", 46, 47))
sketch6.addConstraint(Sketcher.Constraint("Horizontal", 5, 2, 7, 2))
sketch6.addConstraint(Sketcher.Constraint("Horizontal", 11, 2, 13, 2))
sketch6.addConstraint(Sketcher.Constraint("Horizontal", 14, 2, 20, 2))
sketch6.addConstraint(Sketcher.Constraint("Horizontal", 20, 2, 22, 2))
sketch6.addConstraint(Sketcher.Constraint("Horizontal", 18, 2, 24, 2))
sketch6.addConstraint(Sketcher.Constraint("Horizontal", 16, 2, 26, 2))
sketch6.addConstraint(Sketcher.Constraint("Horizontal", 22, 2, 28, 2))
sketch6.addConstraint(Sketcher.Constraint("Horizontal", 12, 2, 30, 2))
sketch6.addConstraint(Sketcher.Constraint("Horizontal", 29, 2, 31, 2))
sketch6.addConstraint(Sketcher.Constraint("Horizontal", 9, 2, 33, 2))
sketch6.addConstraint(Sketcher.Constraint("Horizontal", 7, 2, 35, 2))
sketch6.addConstraint(Sketcher.Constraint("Horizontal", 6, 2, 36, 2))
sketch6.addConstraint(Sketcher.Constraint("Horizontal", 35, 2, 37, 2))
sketch6.addConstraint(Sketcher.Constraint("Horizontal", 3, 2, 39, 2))
sketch6.addConstraint(Sketcher.Constraint("Horizontal", 1, 2, 41, 2))
sketch6.addConstraint(Sketcher.Constraint("Horizontal", 38, 2, 44, 2))
sketch6.addConstraint(Sketcher.Constraint("Horizontal", 44, 2, 46, 2))
sketch6.addConstraint(Sketcher.Constraint("Vertical", 2, 2, 8, 2))
sketch6.addConstraint(Sketcher.Constraint("Vertical", 8, 2, 10, 2))
sketch6.addConstraint(Sketcher.Constraint("Vertical", 6, 2, 12, 2))
sketch6.addConstraint(Sketcher.Constraint("Vertical", 4, 2, 14, 2))
sketch6.addConstraint(Sketcher.Constraint("Vertical", 10, 2, 16, 2))
sketch6.addConstraint(Sketcher.Constraint("Vertical", 0, 2, 18, 2))
sketch6.addConstraint(Sketcher.Constraint("Vertical", 17, 2, 19, 2))
sketch6.addConstraint(Sketcher.Constraint("Vertical", 23, 2, 25, 2))
sketch6.addConstraint(Sketcher.Constraint("Vertical", 26, 2, 32, 2))
sketch6.addConstraint(Sketcher.Constraint("Vertical", 32, 2, 34, 2))
sketch6.addConstraint(Sketcher.Constraint("Vertical", 30, 2, 36, 2))
sketch6.addConstraint(Sketcher.Constraint("Vertical", 28, 2, 38, 2))
sketch6.addConstraint(Sketcher.Constraint("Vertical", 34, 2, 40, 2))
sketch6.addConstraint(Sketcher.Constraint("Vertical", 24, 2, 42, 2))
sketch6.addConstraint(Sketcher.Constraint("Vertical", 41, 2, 43, 2))
sketch6.addConstraint(Sketcher.Constraint("Vertical", 19, 2, 47, 2))
sketch6.addConstraint(Sketcher.Constraint("Equal", 14, 29))
sketch6.addConstraint(Sketcher.Constraint("Equal", 38, 2))
sketch6.addConstraint(Sketcher.Constraint("Equal", 2, 17))
sketch6.addConstraint(Sketcher.Constraint("DistanceX", 5, 2, 5, 1, 1.0))
sketch6.addConstraint(Sketcher.Constraint("DistanceX", 3, 1, 3, 2, 15.1))
sketch6.addConstraint(Sketcher.Constraint("DistanceX", 27, 2, 27, 1, 15.5))
sketch6.addConstraint(Sketcher.Constraint("DistanceY", 4, 1, 4, 2, 11.3))
sketch6.addConstraint(Sketcher.Constraint("DistanceY", 15, 1, 15, 2, 11.5))
sketch6.addConstraint(Sketcher.Constraint("DistanceY", 7, 2, 11, 2, 5.0))
sketch6.addConstraint(Sketcher.Constraint("DistanceX", 23, 2, 19, 2, 5.0))
sketch6.addConstraint(Sketcher.Constraint("DistanceY", 7, 2, 9, 2, 2.6))
sketch6.addConstraint(Sketcher.Constraint("DistanceX", 21, 2, 10, 2, 2.7))
sketch6.addConstraint(Sketcher.Constraint("Distance", 44, 0.7009))
sketch6.addConstraint(Sketcher.Constraint("DistanceX", 35, 2, -1, 1, 38.667101))
sketch6.addConstraint(Sketcher.Constraint("Distance", 0, 15.70703))
sketch6.addConstraint(Sketcher.Constraint("Distance", 12, 15.170459))
sketch6.addConstraint(Sketcher.Constraint("DistanceY", -1, 1, 8, 2, 16.716569))
pad3 = body2.newObject("PartDesign::Pad", "Pad002")
pad3.Profile = sketch6
pad3.Length = 2
body3 = doc.addObject("PartDesign::Body", "Body002")

# Sketch on XY plane
sketch7 = body3.newObject("Sketcher::SketchObject", "Sketch006")
sketch7.AttachmentSupport = (doc.getObject("XY_Plane002"), [""])
sketch7.MapMode = "FlatFace"
sketch7.addGeometry(Part.LineSegment(Vector(-52.3, -13.1, 0), Vector(-52.3, -41.1, 0)), False)
sketch7.addGeometry(Part.LineSegment(Vector(-52.3, -41.1, 0), Vector(-16.3, -41.1, 0)), False)
sketch7.addGeometry(Part.LineSegment(Vector(-16.3, -41.1, 0), Vector(-16.3, -13.1, 0)), False)
sketch7.addGeometry(Part.LineSegment(Vector(-16.3, -13.1, 0), Vector(-52.3, -13.1, 0)), False)
sketch7.addGeometry(Part.Circle(Vector(-47.1, -37.1, 0), Vector(0, 0, 1), 1), False)
sketch7.addGeometry(Part.Circle(Vector(-38.1, -37.1, 0), Vector(0, 0, 1), 1), False)
sketch7.addGeometry(Part.Circle(Vector(-29.1, -37.1, 0), Vector(0, 0, 1), 1), False)
sketch7.addGeometry(Part.Circle(Vector(-20.1, -37.1, 0), Vector(0, 0, 1), 1), False)
sketch7.addGeometry(Part.Circle(Vector(-47.8, -27.1, 0), Vector(0, 0, 1), 1), False)
sketch7.addGeometry(Part.Circle(Vector(-38.8, -27.1, 0), Vector(0, 0, 1), 1), False)
sketch7.addGeometry(Part.Circle(Vector(-47.8, -17.1, 0), Vector(0, 0, 1), 1), False)
sketch7.addGeometry(Part.Circle(Vector(-38.8, -17.1, 0), Vector(0, 0, 1), 1), False)
sketch7.addGeometry(Part.Circle(Vector(-29.8, -27.1, 0), Vector(0, 0, 1), 1), False)
sketch7.addGeometry(Part.Circle(Vector(-20.8, -27.1, 0), Vector(0, 0, 1), 1), False)
sketch7.addGeometry(Part.Circle(Vector(-29.8, -17.1, 0), Vector(0, 0, 1), 1), False)
sketch7.addGeometry(Part.Circle(Vector(-20.8, -17.1, 0), Vector(0, 0, 1), 1), False)
sketch7.addConstraint(Sketcher.Constraint("Coincident", 0, 2, 1, 1))
sketch7.addConstraint(Sketcher.Constraint("Coincident", 1, 2, 2, 1))
sketch7.addConstraint(Sketcher.Constraint("Coincident", 2, 2, 3, 1))
sketch7.addConstraint(Sketcher.Constraint("Coincident", 3, 2, 0, 1))
sketch7.addConstraint(Sketcher.Constraint("Vertical", 0))
sketch7.addConstraint(Sketcher.Constraint("Horizontal", 1))
sketch7.addConstraint(Sketcher.Constraint("Vertical", 2))
sketch7.addConstraint(Sketcher.Constraint("Horizontal", 3))
sketch7.addConstraint(Sketcher.Constraint("Equal", 4, 5))
sketch7.addConstraint(Sketcher.Constraint("Equal", 5, 6))
sketch7.addConstraint(Sketcher.Constraint("Equal", 6, 7))
sketch7.addConstraint(Sketcher.Constraint("Equal", 7, 8))
sketch7.addConstraint(Sketcher.Constraint("Equal", 8, 9))
sketch7.addConstraint(Sketcher.Constraint("Equal", 9, 10))
sketch7.addConstraint(Sketcher.Constraint("Equal", 10, 11))
sketch7.addConstraint(Sketcher.Constraint("Equal", 11, 12))
sketch7.addConstraint(Sketcher.Constraint("Equal", 12, 13))
sketch7.addConstraint(Sketcher.Constraint("Equal", 13, 14))
sketch7.addConstraint(Sketcher.Constraint("Equal", 14, 15))
sketch7.addConstraint(Sketcher.Constraint("Horizontal", 4, 3, 5, 3))
sketch7.addConstraint(Sketcher.Constraint("Horizontal", 5, 3, 6, 3))
sketch7.addConstraint(Sketcher.Constraint("Horizontal", 6, 3, 7, 3))
sketch7.addConstraint(Sketcher.Constraint("Horizontal", 8, 3, 9, 3))
sketch7.addConstraint(Sketcher.Constraint("Horizontal", 10, 3, 11, 3))
sketch7.addConstraint(Sketcher.Constraint("Horizontal", 9, 3, 12, 3))
sketch7.addConstraint(Sketcher.Constraint("Horizontal", 12, 3, 13, 3))
sketch7.addConstraint(Sketcher.Constraint("Horizontal", 11, 3, 14, 3))
sketch7.addConstraint(Sketcher.Constraint("Horizontal", 14, 3, 15, 3))
sketch7.addConstraint(Sketcher.Constraint("Vertical", 8, 3, 10, 3))
sketch7.addConstraint(Sketcher.Constraint("Vertical", 9, 3, 11, 3))
sketch7.addConstraint(Sketcher.Constraint("Vertical", 12, 3, 14, 3))
sketch7.addConstraint(Sketcher.Constraint("Vertical", 13, 3, 15, 3))
sketch7.addConstraint(Sketcher.Constraint("Diameter", 4, 2.0))
sketch7.addConstraint(Sketcher.Constraint("DistanceX", 1, 1, 1, 2, 36.0))
sketch7.addConstraint(Sketcher.Constraint("DistanceY", 0, 2, 0, 1, 28.0))
sketch7.addConstraint(Sketcher.Constraint("DistanceX", 4, 3, 5, 3, 9.0))
sketch7.addConstraint(Sketcher.Constraint("DistanceX", 5, 3, 6, 3, 9.0))
sketch7.addConstraint(Sketcher.Constraint("DistanceX", 6, 3, 7, 3, 9.0))
sketch7.addConstraint(Sketcher.Constraint("DistanceY", 4, 3, 8, 3, 10.0))
sketch7.addConstraint(Sketcher.Constraint("DistanceX", 8, 3, 9, 3, 9.0))
sketch7.addConstraint(Sketcher.Constraint("DistanceY", 8, 3, 10, 3, 10.0))
sketch7.addConstraint(Sketcher.Constraint("DistanceX", 9, 3, 12, 3, 9.0))
sketch7.addConstraint(Sketcher.Constraint("DistanceX", 12, 3, 13, 3, 9.0))
sketch7.addConstraint(Sketcher.Constraint("DistanceY", 0, 2, 4, 3, 4.0))
sketch7.addConstraint(Sketcher.Constraint("DistanceX", 0, 2, 8, 3, 4.5))
sketch7.addConstraint(Sketcher.Constraint("DistanceX", 4, 3, -1, 1, 47.095542))
sketch7.addConstraint(Sketcher.Constraint("DistanceY", 4, 3, -1, 1, 37.146668))
sketch7.addConstraint(Sketcher.Constraint("DistanceX", 8, 3, -1, 1, 47.805425))
pad4 = body3.newObject("PartDesign::Pad", "Pad003")
pad4.Profile = sketch7
pad4.Length = 1

doc.recompute()
